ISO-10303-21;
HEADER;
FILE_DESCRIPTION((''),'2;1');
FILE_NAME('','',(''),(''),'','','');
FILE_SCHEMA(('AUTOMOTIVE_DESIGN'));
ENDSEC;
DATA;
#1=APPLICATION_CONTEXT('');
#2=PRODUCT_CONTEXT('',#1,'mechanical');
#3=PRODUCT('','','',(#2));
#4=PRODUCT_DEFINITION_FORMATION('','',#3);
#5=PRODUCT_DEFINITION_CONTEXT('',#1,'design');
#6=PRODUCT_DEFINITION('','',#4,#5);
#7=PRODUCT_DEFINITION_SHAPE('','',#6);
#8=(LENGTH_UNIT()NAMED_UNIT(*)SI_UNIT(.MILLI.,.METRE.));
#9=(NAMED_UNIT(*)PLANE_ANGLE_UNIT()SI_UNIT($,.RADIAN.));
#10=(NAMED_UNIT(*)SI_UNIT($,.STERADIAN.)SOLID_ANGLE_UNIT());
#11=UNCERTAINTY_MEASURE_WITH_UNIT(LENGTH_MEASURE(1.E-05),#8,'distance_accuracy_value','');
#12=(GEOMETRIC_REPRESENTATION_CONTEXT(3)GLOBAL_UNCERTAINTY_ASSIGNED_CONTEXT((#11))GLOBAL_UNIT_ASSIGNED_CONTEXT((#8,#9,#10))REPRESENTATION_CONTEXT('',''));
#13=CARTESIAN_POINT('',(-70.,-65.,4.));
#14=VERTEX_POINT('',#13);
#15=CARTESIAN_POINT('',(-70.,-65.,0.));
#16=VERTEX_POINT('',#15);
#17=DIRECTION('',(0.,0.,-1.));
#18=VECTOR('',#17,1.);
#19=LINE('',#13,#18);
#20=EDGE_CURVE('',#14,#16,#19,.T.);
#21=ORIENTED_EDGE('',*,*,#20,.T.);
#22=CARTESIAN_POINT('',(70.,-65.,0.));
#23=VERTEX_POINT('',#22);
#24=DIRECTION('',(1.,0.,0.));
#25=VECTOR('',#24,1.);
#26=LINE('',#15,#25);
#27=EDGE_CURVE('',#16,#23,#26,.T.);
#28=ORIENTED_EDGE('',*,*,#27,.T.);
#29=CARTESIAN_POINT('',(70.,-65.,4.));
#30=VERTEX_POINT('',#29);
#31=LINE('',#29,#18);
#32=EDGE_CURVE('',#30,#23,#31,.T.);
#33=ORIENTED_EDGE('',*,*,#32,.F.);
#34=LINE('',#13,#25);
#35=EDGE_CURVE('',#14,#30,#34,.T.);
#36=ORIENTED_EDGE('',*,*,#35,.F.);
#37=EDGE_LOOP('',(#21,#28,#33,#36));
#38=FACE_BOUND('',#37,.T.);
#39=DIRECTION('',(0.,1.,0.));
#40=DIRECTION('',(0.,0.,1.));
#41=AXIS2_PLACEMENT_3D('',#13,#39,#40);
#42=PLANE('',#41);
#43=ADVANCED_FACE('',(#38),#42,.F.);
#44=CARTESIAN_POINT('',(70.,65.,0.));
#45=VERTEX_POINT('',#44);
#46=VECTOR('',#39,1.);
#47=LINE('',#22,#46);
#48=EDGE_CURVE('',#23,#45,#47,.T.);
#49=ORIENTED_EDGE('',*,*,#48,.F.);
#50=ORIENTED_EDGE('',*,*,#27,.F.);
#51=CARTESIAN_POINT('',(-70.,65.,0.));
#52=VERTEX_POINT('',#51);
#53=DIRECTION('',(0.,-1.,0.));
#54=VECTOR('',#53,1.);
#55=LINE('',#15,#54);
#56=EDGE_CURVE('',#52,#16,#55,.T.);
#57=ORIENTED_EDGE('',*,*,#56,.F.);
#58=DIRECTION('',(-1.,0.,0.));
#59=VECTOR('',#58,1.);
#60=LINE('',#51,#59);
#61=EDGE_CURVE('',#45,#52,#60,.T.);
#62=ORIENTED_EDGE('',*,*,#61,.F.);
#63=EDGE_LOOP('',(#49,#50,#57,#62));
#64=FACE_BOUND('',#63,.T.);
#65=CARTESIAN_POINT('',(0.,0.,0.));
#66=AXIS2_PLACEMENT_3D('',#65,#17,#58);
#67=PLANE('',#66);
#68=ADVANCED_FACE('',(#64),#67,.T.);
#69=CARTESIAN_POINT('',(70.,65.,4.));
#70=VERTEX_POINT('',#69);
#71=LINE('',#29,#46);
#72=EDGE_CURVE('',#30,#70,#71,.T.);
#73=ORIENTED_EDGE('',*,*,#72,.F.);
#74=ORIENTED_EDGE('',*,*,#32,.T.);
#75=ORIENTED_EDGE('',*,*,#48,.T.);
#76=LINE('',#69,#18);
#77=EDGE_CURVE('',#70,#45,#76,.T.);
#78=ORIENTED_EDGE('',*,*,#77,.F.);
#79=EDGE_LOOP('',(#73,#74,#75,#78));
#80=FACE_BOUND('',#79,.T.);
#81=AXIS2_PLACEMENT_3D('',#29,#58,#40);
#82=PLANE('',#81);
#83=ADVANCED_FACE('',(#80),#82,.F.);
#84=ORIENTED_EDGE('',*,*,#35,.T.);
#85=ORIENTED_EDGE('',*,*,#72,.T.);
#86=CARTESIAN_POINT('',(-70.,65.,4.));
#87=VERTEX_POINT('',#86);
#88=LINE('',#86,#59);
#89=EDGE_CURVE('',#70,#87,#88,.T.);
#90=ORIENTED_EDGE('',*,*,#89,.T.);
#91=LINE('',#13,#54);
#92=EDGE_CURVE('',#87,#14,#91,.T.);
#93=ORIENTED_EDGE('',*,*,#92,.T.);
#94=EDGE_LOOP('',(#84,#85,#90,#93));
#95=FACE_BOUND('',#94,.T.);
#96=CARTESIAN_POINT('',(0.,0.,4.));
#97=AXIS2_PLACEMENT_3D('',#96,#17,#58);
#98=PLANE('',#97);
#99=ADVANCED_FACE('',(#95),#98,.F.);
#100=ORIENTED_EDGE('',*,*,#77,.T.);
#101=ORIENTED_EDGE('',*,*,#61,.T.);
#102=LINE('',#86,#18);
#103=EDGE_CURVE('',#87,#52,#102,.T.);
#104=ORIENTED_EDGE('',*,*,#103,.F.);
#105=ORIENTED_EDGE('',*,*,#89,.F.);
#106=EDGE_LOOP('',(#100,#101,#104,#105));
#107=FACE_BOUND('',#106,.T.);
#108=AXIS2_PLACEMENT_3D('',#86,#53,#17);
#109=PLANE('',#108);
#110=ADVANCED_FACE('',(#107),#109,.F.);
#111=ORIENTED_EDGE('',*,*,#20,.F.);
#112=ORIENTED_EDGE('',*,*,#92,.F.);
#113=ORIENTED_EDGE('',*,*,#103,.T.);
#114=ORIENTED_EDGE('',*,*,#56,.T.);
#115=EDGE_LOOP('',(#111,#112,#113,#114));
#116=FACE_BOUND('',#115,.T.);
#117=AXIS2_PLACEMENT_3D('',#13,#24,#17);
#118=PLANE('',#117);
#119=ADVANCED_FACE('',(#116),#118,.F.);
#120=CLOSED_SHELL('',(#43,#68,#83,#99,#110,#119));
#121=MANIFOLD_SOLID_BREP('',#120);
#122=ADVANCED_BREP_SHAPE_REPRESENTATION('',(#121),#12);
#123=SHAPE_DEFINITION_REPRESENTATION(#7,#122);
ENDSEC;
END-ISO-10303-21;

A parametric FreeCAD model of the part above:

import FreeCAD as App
import Part
import Sketcher
from FreeCAD import Vector
Q = App.Units.Quantity


def add_polygon(sketch, points):
    """Adds a closed chain of lines whose ends are joined by coincident constraints."""
    first, n = sketch.GeometryCount, len(points)
    for a, b in zip(points, points[1:] + points[:1]):
        sketch.addGeometry(Part.LineSegment(App.Vector(*a, 0), App.Vector(*b, 0)), False)
    for i in range(n):
        sketch.addConstraint(Sketcher.Constraint("Coincident", first + i, 2, first + (i + 1) % n, 1))

doc = App.newDocument("Part")
body = doc.addObject("PartDesign::Body", "Body")

# Sketch on XY plane
sketch1 = body.newObject("Sketcher::SketchObject", "Sketch")
sketch1.AttachmentSupport = (doc.getObject("XY_Plane"), [""])
sketch1.MapMode = "FlatFace"
add_polygon(sketch1, [(-70, 65), (-70, -65), (70, -65), (70, 65)])  # lines 0-3
sketch1.addConstraint([
    Sketcher.Constraint("Vertical", 0),
    Sketcher.Constraint("Horizontal", 1),
    Sketcher.Constraint("Vertical", 2),
    Sketcher.Constraint("Horizontal", 3),
    Sketcher.Constraint("Symmetric", 0, 2, 2, 2, -1, 1),
    Sketcher.Constraint("DistanceX", 1, 1, 1, 2, Q("140 mm")),
    Sketcher.Constraint("DistanceY", 0, 2, 0, 1, Q("130 mm")),
])
pad1 = body.newObject("PartDesign::Pad", "Pad")
pad1.Profile = sketch1
pad1.Length = 4

doc.recompute()
